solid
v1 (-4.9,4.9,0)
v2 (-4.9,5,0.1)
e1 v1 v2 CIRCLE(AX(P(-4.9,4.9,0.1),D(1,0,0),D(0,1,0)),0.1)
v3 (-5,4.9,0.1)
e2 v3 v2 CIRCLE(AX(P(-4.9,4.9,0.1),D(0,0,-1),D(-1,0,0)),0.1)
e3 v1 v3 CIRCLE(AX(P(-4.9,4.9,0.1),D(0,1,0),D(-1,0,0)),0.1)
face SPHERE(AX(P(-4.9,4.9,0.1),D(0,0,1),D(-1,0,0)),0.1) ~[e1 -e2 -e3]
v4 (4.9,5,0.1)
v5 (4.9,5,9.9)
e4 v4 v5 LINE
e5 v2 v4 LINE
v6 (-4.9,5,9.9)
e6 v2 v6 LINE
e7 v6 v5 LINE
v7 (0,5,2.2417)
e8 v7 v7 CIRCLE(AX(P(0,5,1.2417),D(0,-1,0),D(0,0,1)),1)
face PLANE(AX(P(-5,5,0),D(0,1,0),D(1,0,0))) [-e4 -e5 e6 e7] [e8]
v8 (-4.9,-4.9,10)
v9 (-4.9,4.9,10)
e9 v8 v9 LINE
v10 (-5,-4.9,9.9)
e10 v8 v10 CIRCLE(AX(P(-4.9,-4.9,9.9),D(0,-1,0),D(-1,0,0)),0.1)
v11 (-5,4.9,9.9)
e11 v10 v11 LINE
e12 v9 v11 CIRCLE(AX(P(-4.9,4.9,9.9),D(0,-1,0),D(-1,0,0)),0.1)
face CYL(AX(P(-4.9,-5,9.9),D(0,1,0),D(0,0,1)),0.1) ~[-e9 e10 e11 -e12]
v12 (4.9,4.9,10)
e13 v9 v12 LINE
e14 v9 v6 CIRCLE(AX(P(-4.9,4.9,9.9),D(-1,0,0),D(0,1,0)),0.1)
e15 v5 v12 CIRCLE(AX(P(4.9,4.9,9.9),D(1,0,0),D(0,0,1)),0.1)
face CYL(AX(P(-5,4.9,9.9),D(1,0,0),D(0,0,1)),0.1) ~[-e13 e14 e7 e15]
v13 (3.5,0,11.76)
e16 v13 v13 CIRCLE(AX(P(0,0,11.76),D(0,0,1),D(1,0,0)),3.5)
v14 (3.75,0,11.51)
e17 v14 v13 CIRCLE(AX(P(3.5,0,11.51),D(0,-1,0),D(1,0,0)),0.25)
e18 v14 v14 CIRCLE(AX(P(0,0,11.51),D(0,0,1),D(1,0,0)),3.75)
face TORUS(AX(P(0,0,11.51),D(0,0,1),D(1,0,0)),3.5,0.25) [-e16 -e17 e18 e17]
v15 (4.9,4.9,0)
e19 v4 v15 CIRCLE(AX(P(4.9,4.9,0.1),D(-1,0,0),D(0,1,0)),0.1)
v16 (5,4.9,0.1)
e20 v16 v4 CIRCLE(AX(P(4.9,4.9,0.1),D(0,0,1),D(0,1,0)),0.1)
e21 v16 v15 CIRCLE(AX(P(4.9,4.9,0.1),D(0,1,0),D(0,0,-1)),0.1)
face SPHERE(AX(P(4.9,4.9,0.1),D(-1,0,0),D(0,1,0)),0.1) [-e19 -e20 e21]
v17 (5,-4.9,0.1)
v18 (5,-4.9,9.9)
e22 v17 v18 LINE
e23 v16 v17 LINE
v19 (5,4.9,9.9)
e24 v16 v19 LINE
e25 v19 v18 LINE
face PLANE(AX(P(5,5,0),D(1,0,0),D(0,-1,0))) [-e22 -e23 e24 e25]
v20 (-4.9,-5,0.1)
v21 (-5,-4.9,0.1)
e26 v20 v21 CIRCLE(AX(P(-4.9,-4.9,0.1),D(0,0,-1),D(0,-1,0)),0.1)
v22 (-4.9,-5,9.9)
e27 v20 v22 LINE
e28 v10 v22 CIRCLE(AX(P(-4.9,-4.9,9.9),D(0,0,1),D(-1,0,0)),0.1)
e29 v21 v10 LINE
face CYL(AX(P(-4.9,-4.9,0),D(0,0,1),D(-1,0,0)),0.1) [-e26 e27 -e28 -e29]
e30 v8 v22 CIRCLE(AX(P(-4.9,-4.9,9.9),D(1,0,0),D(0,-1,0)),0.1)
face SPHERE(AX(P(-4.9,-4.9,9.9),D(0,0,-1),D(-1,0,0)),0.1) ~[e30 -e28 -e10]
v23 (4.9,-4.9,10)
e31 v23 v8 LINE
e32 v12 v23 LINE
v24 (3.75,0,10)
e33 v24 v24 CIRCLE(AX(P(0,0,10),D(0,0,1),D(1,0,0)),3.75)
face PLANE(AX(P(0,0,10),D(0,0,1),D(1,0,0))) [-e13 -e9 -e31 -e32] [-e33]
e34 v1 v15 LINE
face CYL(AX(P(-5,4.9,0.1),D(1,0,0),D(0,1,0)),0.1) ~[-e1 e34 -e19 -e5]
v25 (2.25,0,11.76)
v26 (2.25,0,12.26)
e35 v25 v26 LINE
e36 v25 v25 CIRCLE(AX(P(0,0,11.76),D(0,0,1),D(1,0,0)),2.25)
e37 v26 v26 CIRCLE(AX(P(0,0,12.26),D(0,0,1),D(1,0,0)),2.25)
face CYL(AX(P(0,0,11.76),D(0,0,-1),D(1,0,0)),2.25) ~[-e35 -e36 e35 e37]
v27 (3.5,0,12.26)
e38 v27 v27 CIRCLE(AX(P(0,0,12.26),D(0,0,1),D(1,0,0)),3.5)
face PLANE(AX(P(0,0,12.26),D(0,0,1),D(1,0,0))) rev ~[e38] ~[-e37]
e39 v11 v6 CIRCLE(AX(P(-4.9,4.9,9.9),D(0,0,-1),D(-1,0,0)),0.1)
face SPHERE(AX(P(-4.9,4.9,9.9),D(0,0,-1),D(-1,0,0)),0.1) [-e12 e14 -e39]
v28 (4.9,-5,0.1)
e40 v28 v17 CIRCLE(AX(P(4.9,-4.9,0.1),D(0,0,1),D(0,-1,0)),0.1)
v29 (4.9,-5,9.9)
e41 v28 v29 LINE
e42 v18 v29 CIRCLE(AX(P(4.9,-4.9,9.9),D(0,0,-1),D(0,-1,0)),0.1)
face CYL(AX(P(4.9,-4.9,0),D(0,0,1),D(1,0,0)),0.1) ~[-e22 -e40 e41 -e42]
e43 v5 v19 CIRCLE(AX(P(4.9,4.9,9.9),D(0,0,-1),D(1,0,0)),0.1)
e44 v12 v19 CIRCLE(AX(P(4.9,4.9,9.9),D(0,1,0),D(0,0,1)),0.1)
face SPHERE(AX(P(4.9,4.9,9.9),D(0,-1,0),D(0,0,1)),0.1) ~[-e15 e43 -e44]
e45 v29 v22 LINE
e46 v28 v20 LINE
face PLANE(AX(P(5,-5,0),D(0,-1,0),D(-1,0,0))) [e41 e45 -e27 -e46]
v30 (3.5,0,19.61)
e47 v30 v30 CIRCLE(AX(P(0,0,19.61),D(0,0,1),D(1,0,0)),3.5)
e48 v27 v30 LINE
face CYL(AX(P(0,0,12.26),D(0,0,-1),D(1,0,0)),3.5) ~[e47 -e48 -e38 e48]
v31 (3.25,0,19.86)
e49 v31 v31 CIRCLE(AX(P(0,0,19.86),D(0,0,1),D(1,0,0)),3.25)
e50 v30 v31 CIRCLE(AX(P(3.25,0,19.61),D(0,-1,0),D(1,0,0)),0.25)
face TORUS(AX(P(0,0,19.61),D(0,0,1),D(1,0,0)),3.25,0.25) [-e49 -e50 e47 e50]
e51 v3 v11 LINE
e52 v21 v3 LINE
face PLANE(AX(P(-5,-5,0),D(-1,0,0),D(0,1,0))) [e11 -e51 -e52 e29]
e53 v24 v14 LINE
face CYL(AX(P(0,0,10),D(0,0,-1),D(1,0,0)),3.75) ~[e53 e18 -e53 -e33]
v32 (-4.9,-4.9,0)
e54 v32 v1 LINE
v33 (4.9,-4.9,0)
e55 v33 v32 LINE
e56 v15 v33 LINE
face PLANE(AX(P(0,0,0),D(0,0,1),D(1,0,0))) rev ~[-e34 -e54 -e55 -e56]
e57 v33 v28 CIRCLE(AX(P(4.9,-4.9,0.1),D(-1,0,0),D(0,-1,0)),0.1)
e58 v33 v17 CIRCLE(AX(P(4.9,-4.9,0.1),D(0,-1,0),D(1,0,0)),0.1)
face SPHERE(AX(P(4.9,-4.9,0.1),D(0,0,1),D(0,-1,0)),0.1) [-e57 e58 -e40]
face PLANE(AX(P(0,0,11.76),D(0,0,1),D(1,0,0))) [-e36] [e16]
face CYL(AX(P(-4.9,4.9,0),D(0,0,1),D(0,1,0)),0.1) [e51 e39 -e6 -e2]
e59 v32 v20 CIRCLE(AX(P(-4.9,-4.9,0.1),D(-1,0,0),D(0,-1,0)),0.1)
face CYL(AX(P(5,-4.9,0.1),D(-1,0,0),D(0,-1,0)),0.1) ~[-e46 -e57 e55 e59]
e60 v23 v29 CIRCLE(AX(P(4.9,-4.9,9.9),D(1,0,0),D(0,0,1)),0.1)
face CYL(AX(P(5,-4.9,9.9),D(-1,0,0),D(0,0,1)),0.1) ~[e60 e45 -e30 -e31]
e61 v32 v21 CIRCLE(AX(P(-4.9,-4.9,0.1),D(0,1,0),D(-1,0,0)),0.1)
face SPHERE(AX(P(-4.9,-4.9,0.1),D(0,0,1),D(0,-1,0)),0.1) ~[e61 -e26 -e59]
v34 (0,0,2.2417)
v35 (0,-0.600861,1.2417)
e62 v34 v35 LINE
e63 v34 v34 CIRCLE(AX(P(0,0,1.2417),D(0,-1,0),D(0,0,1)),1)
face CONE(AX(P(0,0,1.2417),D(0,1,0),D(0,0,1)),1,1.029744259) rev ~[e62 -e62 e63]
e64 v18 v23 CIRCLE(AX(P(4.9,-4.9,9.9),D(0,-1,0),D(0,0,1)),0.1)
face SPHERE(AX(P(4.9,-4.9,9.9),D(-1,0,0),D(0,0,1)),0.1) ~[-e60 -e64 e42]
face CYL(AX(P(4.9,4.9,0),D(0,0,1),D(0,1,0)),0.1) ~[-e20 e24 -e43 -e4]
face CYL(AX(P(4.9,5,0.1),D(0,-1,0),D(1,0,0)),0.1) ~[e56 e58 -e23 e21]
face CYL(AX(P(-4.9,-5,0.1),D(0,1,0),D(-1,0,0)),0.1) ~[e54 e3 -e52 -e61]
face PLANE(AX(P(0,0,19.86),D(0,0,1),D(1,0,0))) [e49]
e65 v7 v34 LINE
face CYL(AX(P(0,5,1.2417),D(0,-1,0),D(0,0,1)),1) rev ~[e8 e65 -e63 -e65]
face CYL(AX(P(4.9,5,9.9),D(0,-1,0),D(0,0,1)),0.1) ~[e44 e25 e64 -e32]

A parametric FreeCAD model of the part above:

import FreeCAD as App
import Part
import Sketcher
from FreeCAD import Vector
Q = App.Units.Quantity


def edges_at(feature, points):
    """Names of the edges that pass closest to the given points."""
    edges = feature.Shape.Edges
    near = lambda p: min(range(len(edges)), key=lambda i: edges[i].distToShape(Part.Vertex(*p))[0])
    return sorted({f"Edge{near(p) + 1}" for p in points})


def add_polygon(sketch, points):
    """Adds a closed chain of lines whose ends are joined by coincident constraints."""
    first, n = sketch.GeometryCount, len(points)
    for a, b in zip(points, points[1:] + points[:1]):
        sketch.addGeometry(Part.LineSegment(App.Vector(*a, 0), App.Vector(*b, 0)), False)
    for i in range(n):
        sketch.addConstraint(Sketcher.Constraint("Coincident", first + i, 2, first + (i + 1) % n, 1))

doc = App.newDocument("Part")
body = doc.addObject("PartDesign::Body", "Body")

sketch1 = body.newObject("Sketcher::SketchObject", "Sketch")
sketch1.AttachmentSupport = (doc.getObject("XY_Plane"), [""])
sketch1.MapMode = "FlatFace"
add_polygon(sketch1, [(5, 5), (-5, 5), (-5, -5), (5, -5)])
sketch1.addConstraint(Sketcher.Constraint("Horizontal", 0))
sketch1.addConstraint(Sketcher.Constraint("Vertical", 1))
sketch1.addConstraint(Sketcher.Constraint("Horizontal", 2))
sketch1.addConstraint(Sketcher.Constraint("Vertical", 3))
sketch1.addConstraint(Sketcher.Constraint("Symmetric", 0, 2, 2, 2, -1, 1))
sketch1.addConstraint(Sketcher.Constraint("Equal", 2, 1))
sketch1.addConstraint(Sketcher.Constraint("DistanceX", 0, 2, 0, 1, Q("10 mm")))
pad1 = body.newObject("PartDesign::Pad", "Pad")
pad1.Profile = sketch1
pad1.Length = 10

sketch2 = body.newObject("Sketcher::SketchObject", "Sketch001")
sketch2.AttachmentSupport = (doc.getObject("XY_Plane"), [""])
sketch2.MapMode = "FlatFace"
sketch2.AttachmentOffset = App.Placement(Vector(0, 0, 10), App.Rotation())
sketch2.addGeometry(Part.Circle(Vector(0, 0, 0), Vector(0, 0, 1), 3.8), False)
sketch2.addConstraint(Sketcher.Constraint("Coincident", 0, 3, -1, 1))
sketch2.addConstraint(Sketcher.Constraint("Diameter", 0, Q("7.5 mm")))
pad2 = body.newObject("PartDesign::Pad", "Pad001")
pad2.Profile = sketch2
pad2.Length = 1.76
doc.recompute()

fillet = body.newObject("PartDesign::Fillet", "Fillet")
fillet.Base = (pad2, edges_at(pad2, [(-3.75, 0, 11.76)]))
fillet.Radius = 0.25

sketch3 = body.newObject("Sketcher::SketchObject", "Sketch002")
sketch3.AttachmentSupport = (doc.getObject("XY_Plane"), [""])
sketch3.MapMode = "FlatFace"
sketch3.AttachmentOffset = App.Placement(Vector(0, 0, 11.76), App.Rotation())
sketch3.addGeometry(Part.Circle(Vector(0, 0, 0), Vector(0, 0, 1), 2.2), False)
sketch3.addConstraint(Sketcher.Constraint("Coincident", 0, 3, -1, 1))
sketch3.addConstraint(Sketcher.Constraint("Diameter", 0, Q("4.5 mm")))
pad3 = body.newObject("PartDesign::Pad", "Pad002")
pad3.Profile = sketch3
pad3.Length = 0.5

sketch4 = body.newObject("Sketcher::SketchObject", "Sketch003")
sketch4.AttachmentSupport = (doc.getObject("XY_Plane"), [""])
sketch4.MapMode = "FlatFace"
sketch4.AttachmentOffset = App.Placement(Vector(0, 0, 12.26), App.Rotation())
sketch4.addGeometry(Part.Circle(Vector(0, 0, 0), Vector(0, 0, 1), 3.5), False)
sketch4.addConstraint(Sketcher.Constraint("Coincident", 0, 3, -1, 1))
sketch4.addConstraint(Sketcher.Constraint("Diameter", 0, Q("7 mm")))
pad4 = body.newObject("PartDesign::Pad", "Pad003")
pad4.Profile = sketch4
pad4.Length = 7.6
doc.recompute()

fillet2 = body.newObject("PartDesign::Fillet", "Fillet001")
fillet2.Base = (pad4, edges_at(pad4, [(-3.5, 0, 19.86)]))
fillet2.Radius = 0.25
doc.recompute()

fillet3 = body.newObject("PartDesign::Fillet", "Fillet002")
fillet3.Base = (fillet2, edges_at(fillet2, [
    (-5, -5, 5),
    (-5, 5, 5),
    (-5, 0, 10),
    (0, -5, 10),
    (5, 0, 10),
    (5, -5, 5),
    (0, -5, 0),
    (-5, 0, 0),
    (0, 5, 0),
    (0, 5, 10),
    (5, 5, 5),
    (5, 0, 0),
]))
fillet3.Radius = 0.1

sketch5 = body.newObject("Sketcher::SketchObject", "Sketch004")
sketch5.AttachmentSupport = (doc.getObject("XZ_Plane"), [""])
sketch5.MapMode = "FlatFace"
sketch5.AttachmentOffset = App.Placement(Vector(0, 0, -5), App.Rotation())
sketch5.addGeometry(Part.Circle(Vector(0, 1.2, 0), Vector(0, 0, 1), 1), False)
sketch5.addConstraint(Sketcher.Constraint("PointOnObject", 0, 3, -2))
sketch5.addConstraint(Sketcher.Constraint("Diameter", 0, Q("2 mm")))
sketch5.addConstraint(Sketcher.Constraint("DistanceY", -1, 1, 0, 3, Q("1.2417 mm")))
doc.recompute()
hole = body.newObject("PartDesign::Hole", "Hole")
hole.Profile = sketch5
hole.ThreadType = "None"
hole.Diameter = 2
hole.DepthType = "Dimension"
hole.Depth = 5
hole.DrillPoint = "Angled"
hole.DrillPointAngle = 118
hole.Reversed = True

doc.recompute()
